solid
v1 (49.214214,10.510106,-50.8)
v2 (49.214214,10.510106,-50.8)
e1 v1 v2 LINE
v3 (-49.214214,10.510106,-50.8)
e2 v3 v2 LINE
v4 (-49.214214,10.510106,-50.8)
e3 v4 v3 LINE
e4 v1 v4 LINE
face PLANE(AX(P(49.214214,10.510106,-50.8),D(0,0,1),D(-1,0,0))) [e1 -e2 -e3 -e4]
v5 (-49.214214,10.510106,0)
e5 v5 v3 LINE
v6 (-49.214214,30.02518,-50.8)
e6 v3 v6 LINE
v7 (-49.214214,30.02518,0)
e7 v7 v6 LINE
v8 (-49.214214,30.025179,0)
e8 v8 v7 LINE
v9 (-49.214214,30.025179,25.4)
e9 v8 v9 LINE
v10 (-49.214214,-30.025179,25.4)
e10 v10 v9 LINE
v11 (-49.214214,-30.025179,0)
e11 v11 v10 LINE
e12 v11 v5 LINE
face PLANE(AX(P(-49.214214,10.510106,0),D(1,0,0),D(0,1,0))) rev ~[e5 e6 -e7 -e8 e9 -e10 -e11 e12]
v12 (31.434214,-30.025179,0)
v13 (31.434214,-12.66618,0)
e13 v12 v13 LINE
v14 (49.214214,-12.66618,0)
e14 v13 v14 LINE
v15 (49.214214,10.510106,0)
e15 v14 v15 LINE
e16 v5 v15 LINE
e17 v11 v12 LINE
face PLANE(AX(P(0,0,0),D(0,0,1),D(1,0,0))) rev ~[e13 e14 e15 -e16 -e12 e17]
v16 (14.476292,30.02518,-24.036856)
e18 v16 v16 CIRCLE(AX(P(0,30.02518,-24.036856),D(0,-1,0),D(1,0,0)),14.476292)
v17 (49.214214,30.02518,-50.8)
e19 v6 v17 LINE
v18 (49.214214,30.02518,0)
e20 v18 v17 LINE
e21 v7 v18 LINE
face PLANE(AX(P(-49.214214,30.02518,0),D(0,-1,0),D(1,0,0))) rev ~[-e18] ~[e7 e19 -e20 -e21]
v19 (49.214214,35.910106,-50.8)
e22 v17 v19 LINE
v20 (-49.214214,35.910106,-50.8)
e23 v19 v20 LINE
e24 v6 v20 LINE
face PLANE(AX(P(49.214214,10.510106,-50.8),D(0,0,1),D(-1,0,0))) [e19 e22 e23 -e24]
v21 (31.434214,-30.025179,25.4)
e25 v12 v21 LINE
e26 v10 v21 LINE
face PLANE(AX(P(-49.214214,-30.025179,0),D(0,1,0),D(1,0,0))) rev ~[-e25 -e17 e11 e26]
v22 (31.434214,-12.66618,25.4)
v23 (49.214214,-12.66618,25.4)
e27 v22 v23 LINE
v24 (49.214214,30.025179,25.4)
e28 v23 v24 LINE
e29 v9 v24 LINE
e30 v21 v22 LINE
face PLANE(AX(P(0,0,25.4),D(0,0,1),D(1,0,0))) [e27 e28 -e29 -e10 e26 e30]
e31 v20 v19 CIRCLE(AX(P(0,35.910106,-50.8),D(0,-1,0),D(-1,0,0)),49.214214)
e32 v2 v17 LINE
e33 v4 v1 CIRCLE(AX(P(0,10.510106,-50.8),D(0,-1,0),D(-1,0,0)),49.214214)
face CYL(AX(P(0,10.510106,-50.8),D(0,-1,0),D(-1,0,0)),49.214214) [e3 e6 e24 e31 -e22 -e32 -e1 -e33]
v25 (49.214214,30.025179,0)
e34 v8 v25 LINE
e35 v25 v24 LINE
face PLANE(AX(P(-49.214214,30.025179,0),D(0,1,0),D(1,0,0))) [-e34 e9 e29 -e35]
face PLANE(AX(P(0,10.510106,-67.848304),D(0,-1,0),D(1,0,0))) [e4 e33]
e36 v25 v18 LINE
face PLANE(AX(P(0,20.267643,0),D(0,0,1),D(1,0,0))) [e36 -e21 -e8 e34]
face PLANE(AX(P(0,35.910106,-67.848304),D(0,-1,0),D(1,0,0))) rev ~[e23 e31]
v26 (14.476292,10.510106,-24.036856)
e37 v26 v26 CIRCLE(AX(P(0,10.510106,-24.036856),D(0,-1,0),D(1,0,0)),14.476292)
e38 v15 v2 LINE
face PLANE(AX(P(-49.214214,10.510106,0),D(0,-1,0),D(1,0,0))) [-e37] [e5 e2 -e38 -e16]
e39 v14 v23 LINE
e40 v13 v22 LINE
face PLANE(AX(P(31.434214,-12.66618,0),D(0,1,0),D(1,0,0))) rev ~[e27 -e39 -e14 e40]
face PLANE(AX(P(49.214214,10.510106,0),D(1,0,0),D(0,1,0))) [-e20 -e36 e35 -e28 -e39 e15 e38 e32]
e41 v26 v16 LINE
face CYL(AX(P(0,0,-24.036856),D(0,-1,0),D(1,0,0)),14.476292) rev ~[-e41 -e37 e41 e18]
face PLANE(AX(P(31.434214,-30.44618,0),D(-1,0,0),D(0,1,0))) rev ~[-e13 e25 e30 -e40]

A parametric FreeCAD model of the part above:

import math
import FreeCAD as App
import Part
import Sketcher
Q = App.Units.Quantity

doc = App.newDocument("Part")
body = doc.addObject("PartDesign::Body", "Body")

sketch1 = doc.addObject("Sketcher::SketchObject", "Sketch")
body.addObject(sketch1)
sketch1.AttachmentSupport = (doc.XY_Plane, [""])
sketch1.MapMode = "FlatFace"
sketch1.addGeometry(Part.LineSegment(App.Vector(-49, 30, 0), App.Vector(-49, -30, 0)), False)
sketch1.addGeometry(Part.LineSegment(App.Vector(-49, -30, 0), App.Vector(49, -30, 0)), False)
sketch1.addGeometry(Part.LineSegment(App.Vector(49, -30, 0), App.Vector(49, 30, 0)), False)
sketch1.addGeometry(Part.LineSegment(App.Vector(49, 30, 0), App.Vector(-49, 30, 0)), False)
sketch1.addConstraint(Sketcher.Constraint("Coincident", 0, 2, 1, 1))
sketch1.addConstraint(Sketcher.Constraint("Coincident", 1, 2, 2, 1))
sketch1.addConstraint(Sketcher.Constraint("Coincident", 2, 2, 3, 1))
sketch1.addConstraint(Sketcher.Constraint("Coincident", 3, 2, 0, 1))
sketch1.addConstraint(Sketcher.Constraint("Vertical", 0))
sketch1.addConstraint(Sketcher.Constraint("Horizontal", 1))
sketch1.addConstraint(Sketcher.Constraint("Vertical", 2))
sketch1.addConstraint(Sketcher.Constraint("Horizontal", 3))
sketch1.addConstraint(Sketcher.Constraint("Symmetric", 0, 2, 2, 2, -1, 1))
sketch1.addConstraint(Sketcher.Constraint("DistanceY", 0, 2, 0, 1, Q("60.050358 mm")))
sketch1.addConstraint(Sketcher.Constraint("DistanceX", 1, 1, 1, 2, Q("98.428428 mm")))
pad1 = doc.addObject("PartDesign::Pad", "Pad")
body.addObject(pad1)
pad1.Profile = sketch1
pad1.Length = Q("1 in")

sketch2 = doc.addObject("Sketcher::SketchObject", "Sketch001")
body.addObject(sketch2)
sketch2.AttachmentSupport = (doc.XY_Plane, [""])
sketch2.MapMode = "FlatFace"
sketch2.addGeometry(Part.LineSegment(App.Vector(31, -13, 0), App.Vector(31, -30, 0)), False)
sketch2.addGeometry(Part.LineSegment(App.Vector(31, -30, 0), App.Vector(49, -30, 0)), False)
sketch2.addGeometry(Part.LineSegment(App.Vector(49, -30, 0), App.Vector(49, -13, 0)), False)
sketch2.addGeometry(Part.LineSegment(App.Vector(49, -13, 0), App.Vector(31, -13, 0)), False)
sketch2.addConstraint(Sketcher.Constraint("Coincident", 0, 2, 1, 1))
sketch2.addConstraint(Sketcher.Constraint("Coincident", 1, 2, 2, 1))
sketch2.addConstraint(Sketcher.Constraint("Coincident", 2, 2, 3, 1))
sketch2.addConstraint(Sketcher.Constraint("Coincident", 3, 2, 0, 1))
sketch2.addConstraint(Sketcher.Constraint("Vertical", 0))
sketch2.addConstraint(Sketcher.Constraint("Horizontal", 1))
sketch2.addConstraint(Sketcher.Constraint("Vertical", 2))
sketch2.addConstraint(Sketcher.Constraint("Horizontal", 3))
sketch2.addConstraint(Sketcher.Constraint("Equal", 3, 0))
sketch2.addConstraint(Sketcher.Constraint("DistanceX", 1, 1, 1, 2, Q("0.7 in")))
sketch2.addConstraint(Sketcher.Constraint("DistanceY", 0, 2, -1, 1, Q("30.44618 mm")))
sketch2.addConstraint(Sketcher.Constraint("DistanceX", -1, 1, 0, 2, Q("31.434214 mm")))
pocket1 = doc.addObject("PartDesign::Pocket", "Pocket")
body.addObject(pocket1)
pocket1.Profile = sketch2
pocket1.Length = Q("1 in")
pocket1.Reversed = True

sketch3 = doc.addObject("Sketcher::SketchObject", "Sketch002")
body.addObject(sketch3)
sketch3.AttachmentSupport = (doc.XY_Plane, [""])
sketch3.MapMode = "FlatFace"
sketch3.addGeometry(Part.LineSegment(App.Vector(-49, 30, 0), App.Vector(-49, 11, 0)), False)
sketch3.addGeometry(Part.LineSegment(App.Vector(-49, 11, 0), App.Vector(49, 11, 0)), False)
sketch3.addGeometry(Part.LineSegment(App.Vector(49, 11, 0), App.Vector(49, 30, 0)), False)
sketch3.addGeometry(Part.LineSegment(App.Vector(49, 30, 0), App.Vector(-49, 30, 0)), False)
sketch3.addConstraint(Sketcher.Constraint("Coincident", 0, 2, 1, 1))
sketch3.addConstraint(Sketcher.Constraint("Coincident", 1, 2, 2, 1))
sketch3.addConstraint(Sketcher.Constraint("Coincident", 2, 2, 3, 1))
sketch3.addConstraint(Sketcher.Constraint("Coincident", 3, 2, 0, 1))
sketch3.addConstraint(Sketcher.Constraint("Vertical", 0))
sketch3.addConstraint(Sketcher.Constraint("Horizontal", 1))
sketch3.addConstraint(Sketcher.Constraint("Vertical", 2))
sketch3.addConstraint(Sketcher.Constraint("Horizontal", 3))
sketch3.addConstraint(Sketcher.Constraint("DistanceX", 1, 1, 1, 2, Q("98.428428 mm")))
sketch3.addConstraint(Sketcher.Constraint("DistanceY", 0, 2, 0, 1, Q("19.515073 mm")))
sketch3.addConstraint(Sketcher.Constraint("DistanceY", -1, 1, 2, 2, Q("30.02518 mm")))
sketch3.addConstraint(Sketcher.Constraint("DistanceX", 0, 2, -1, 1, Q("49.214214 mm")))
pad2 = doc.addObject("PartDesign::Pad", "Pad001")
body.addObject(pad2)
pad2.Profile = sketch3
pad2.Length = Q("2 in")
pad2.Reversed = True

sketch4 = doc.addObject("Sketcher::SketchObject", "Sketch003")
body.addObject(sketch4)
sketch4.AttachmentSupport = (doc.XZ_Plane, [""])
sketch4.MapMode = "FlatFace"
sketch4.addGeometry(Part.Circle(App.Vector(0, -24, 0), App.Vector(0, 0, 1), 14), False)
sketch4.addConstraint(Sketcher.Constraint("PointOnObject", 0, 3, -2))
sketch4.addConstraint(Sketcher.Constraint("Diameter", 0, Q("28.952584 mm")))
sketch4.addConstraint(Sketcher.Constraint("DistanceY", 0, 3, -1, 1, Q("24.036856 mm")))
pocket2 = doc.addObject("PartDesign::Pocket", "Pocket001")
body.addObject(pocket2)
pocket2.Profile = sketch4
pocket2.Length = Q("2 in")

sketch5 = doc.addObject("Sketcher::SketchObject", "Sketch004")
body.addObject(sketch5)
sketch5.AttachmentSupport = (doc.XZ_Plane, [""])
sketch5.MapMode = "FlatFace"
sketch5.AttachmentOffset = App.Placement(App.Vector(0, 0, -10.510106), App.Rotation())
sketch5.addGeometry(Part.ArcOfCircle(Part.Circle(App.Vector(0, -51, 0), App.Vector(0, 0, 1), 49), math.radians(180), math.radians(360)), False)
sketch5.addGeometry(Part.LineSegment(App.Vector(49, -51, 0), App.Vector(-49, -51, 0)), False)
sketch5.addConstraint(Sketcher.Constraint("Coincident", 0, 1, 1, 2))
sketch5.addConstraint(Sketcher.Constraint("Coincident", 1, 1, 0, 2))
sketch5.addConstraint(Sketcher.Constraint("Horizontal", 1))
sketch5.addConstraint(Sketcher.Constraint("PointOnObject", 0, 3, -2))
sketch5.addConstraint(Sketcher.Constraint("DistanceY", 0, 3, -1, 1, Q("2 in")))
sketch5.addConstraint(Sketcher.Constraint("DistanceY", 0, 1, -1, 1, Q("2 in")))
sketch5.addConstraint(Sketcher.Constraint("Radius", 0, Q("49.214214 mm")))
pad3 = doc.addObject("PartDesign::Pad", "Pad002")
body.addObject(pad3)
pad3.Profile = sketch5
pad3.Length = Q("1 in")
pad3.Reversed = True

doc.recompute()
